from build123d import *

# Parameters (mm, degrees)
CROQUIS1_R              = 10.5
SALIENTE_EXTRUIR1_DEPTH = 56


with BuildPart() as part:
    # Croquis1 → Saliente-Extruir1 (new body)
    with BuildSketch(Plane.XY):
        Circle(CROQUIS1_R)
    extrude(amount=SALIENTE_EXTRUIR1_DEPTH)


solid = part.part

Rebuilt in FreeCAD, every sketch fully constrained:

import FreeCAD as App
import Part
import Sketcher
from FreeCAD import Vector
Q = App.Units.Quantity

doc = App.newDocument("Part")
body = doc.addObject("PartDesign::Body", "Body")

sketch1 = doc.addObject("Sketcher::SketchObject", "Sketch")
body.addObject(sketch1)
sketch1.AttachmentSupport = (doc.XY_Plane, [""])
sketch1.MapMode = "FlatFace"
sketch1.addGeometry(Part.Circle(Vector(0, 0, 0), Vector(0, 0, 1), 10.5), False)
sketch1.addConstraint(Sketcher.Constraint("Coincident", 0, 3, -1, 1))
sketch1.addConstraint(Sketcher.Constraint("Diameter", 0, Q("21 mm")))
pad1 = doc.addObject("PartDesign::Pad", "Pad")
body.addObject(pad1)
pad1.Profile = sketch1
pad1.Length = 56

doc.recompute()
